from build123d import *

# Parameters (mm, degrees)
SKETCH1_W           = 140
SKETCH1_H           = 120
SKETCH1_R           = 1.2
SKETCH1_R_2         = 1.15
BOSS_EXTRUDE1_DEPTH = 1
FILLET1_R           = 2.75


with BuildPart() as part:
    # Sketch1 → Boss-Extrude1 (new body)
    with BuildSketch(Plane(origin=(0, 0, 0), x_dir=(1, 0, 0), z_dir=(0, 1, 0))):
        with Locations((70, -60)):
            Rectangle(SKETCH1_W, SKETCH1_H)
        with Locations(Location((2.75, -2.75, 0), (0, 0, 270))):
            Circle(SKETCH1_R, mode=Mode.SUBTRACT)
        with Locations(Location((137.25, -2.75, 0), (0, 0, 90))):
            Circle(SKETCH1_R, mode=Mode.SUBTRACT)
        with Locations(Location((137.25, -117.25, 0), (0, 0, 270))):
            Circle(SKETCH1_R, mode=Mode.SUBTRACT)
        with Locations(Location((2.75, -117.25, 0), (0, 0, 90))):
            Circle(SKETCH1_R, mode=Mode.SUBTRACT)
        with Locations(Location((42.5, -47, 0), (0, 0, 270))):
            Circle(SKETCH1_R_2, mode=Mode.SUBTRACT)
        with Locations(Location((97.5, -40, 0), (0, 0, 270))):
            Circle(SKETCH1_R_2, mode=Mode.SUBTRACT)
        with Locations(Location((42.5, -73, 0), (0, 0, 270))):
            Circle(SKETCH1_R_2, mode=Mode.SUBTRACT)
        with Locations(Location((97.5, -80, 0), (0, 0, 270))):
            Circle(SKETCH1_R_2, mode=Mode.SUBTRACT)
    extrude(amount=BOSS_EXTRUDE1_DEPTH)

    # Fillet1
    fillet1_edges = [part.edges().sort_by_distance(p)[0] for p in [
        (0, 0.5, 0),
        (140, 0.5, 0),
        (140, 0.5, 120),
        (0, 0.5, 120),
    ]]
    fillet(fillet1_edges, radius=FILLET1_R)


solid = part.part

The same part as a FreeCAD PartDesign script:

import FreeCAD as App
import Part
import Sketcher
Q = App.Units.Quantity


def edges_at(feature, points):
    """Names of the edges that pass closest to the given points."""
    edges = feature.Shape.Edges
    near = lambda p: min(range(len(edges)), key=lambda i: edges[i].distToShape(Part.Vertex(*p))[0])
    return sorted({f"Edge{near(p) + 1}" for p in points})


def add_polygon(sketch, points):
    """Adds a closed chain of lines whose ends are joined by coincident constraints."""
    first, n = sketch.GeometryCount, len(points)
    for a, b in zip(points, points[1:] + points[:1]):
        sketch.addGeometry(Part.LineSegment(App.Vector(*a, 0), App.Vector(*b, 0)), False)
    for i in range(n):
        sketch.addConstraint(Sketcher.Constraint("Coincident", first + i, 2, first + (i + 1) % n, 1))

doc = App.newDocument("Part")
params = doc.addObject("Spreadsheet::Sheet", "Params")
for row, (alias, value) in enumerate([
    ("sketch1_diameter", "2.4 mm"),
    ("sketch1_diameter2", "2.3 mm"),
    ("sketch1_width", "140 mm"),
    ("sketch1_height", "120 mm"),
    ("pad1_length", "1 mm"),
    ("fillet_radius", "2.75 mm"),
], start=1):
    params.set(f"A{row}", alias)
    params.set(f"B{row}", "=" + value)
    params.setAlias(f"B{row}", alias)

body = doc.addObject("PartDesign::Body", "Body")

# Sketch on XZ plane
sketch1 = body.newObject("Sketcher::SketchObject", "Sketch")
sketch1.AttachmentSupport = (doc.getObject("XZ_Plane"), [""])
sketch1.MapMode = "FlatFace"
add_polygon(sketch1, [(0, 0), (0, 120), (140, 120), (140, 0)])  # lines 0-3
sketch1.addGeometry(Part.Circle(App.Vector(2.75, 117.25, 0), App.Vector(0, 0, 1), 1.2), False)  # 4
sketch1.addGeometry(Part.Circle(App.Vector(42.5, 73, 0), App.Vector(0, 0, 1), 1.15), False)  # 5
sketch1.addGeometry(Part.Circle(App.Vector(137.25, 117.25, 0), App.Vector(0, 0, 1), 1.2), False)  # 6
sketch1.addGeometry(Part.Circle(App.Vector(97.5, 80, 0), App.Vector(0, 0, 1), 1.15), False)  # 7
sketch1.addGeometry(Part.Circle(App.Vector(42.5, 47, 0), App.Vector(0, 0, 1), 1.15), False)  # 8
sketch1.addGeometry(Part.Circle(App.Vector(2.75, 2.75, 0), App.Vector(0, 0, 1), 1.2), False)  # 9
sketch1.addGeometry(Part.Circle(App.Vector(97.5, 40, 0), App.Vector(0, 0, 1), 1.15), False)  # 10
sketch1.addGeometry(Part.Circle(App.Vector(137.25, 2.75, 0), App.Vector(0, 0, 1), 1.2), False)  # 11
sketch1.addConstraint(Sketcher.Constraint("Vertical", 0))
sketch1.addConstraint(Sketcher.Constraint("Horizontal", 1))
sketch1.addConstraint(Sketcher.Constraint("Vertical", 2))
sketch1.addConstraint(Sketcher.Constraint("Horizontal", 3))
sketch1.addConstraint(Sketcher.Constraint("Coincident", 3, 2, -1, 1))
sketch1.addConstraint(Sketcher.Constraint("Equal", 4, 6))
sketch1.addConstraint(Sketcher.Constraint("Equal", 5, 7))
sketch1.addConstraint(Sketcher.Constraint("Equal", 7, 8))
sketch1.addConstraint(Sketcher.Constraint("Equal", 6, 9))
sketch1.addConstraint(Sketcher.Constraint("Equal", 8, 10))
sketch1.addConstraint(Sketcher.Constraint("Equal", 9, 11))
sketch1.addConstraint(Sketcher.Constraint("Horizontal", 4, 3, 6, 3))
sketch1.addConstraint(Sketcher.Constraint("Horizontal", 9, 3, 11, 3))
sketch1.addConstraint(Sketcher.Constraint("Vertical", 5, 3, 8, 3))
sketch1.addConstraint(Sketcher.Constraint("Vertical", 4, 3, 9, 3))
sketch1.addConstraint(Sketcher.Constraint("Vertical", 7, 3, 10, 3))
sketch1.addConstraint(Sketcher.Constraint("Vertical", 6, 3, 11, 3))
sketch1.addConstraint(Sketcher.Constraint("Diameter", 4, Q("2.4 mm")))
sketch1.addConstraint(Sketcher.Constraint("Diameter", 5, Q("2.3 mm")))
sketch1.addConstraint(Sketcher.Constraint("DistanceX", 1, 1, 1, 2, Q("140 mm")))
sketch1.addConstraint(Sketcher.Constraint("DistanceY", 0, 1, 0, 2, Q("120 mm")))
sketch1.addConstraint(Sketcher.Constraint("DistanceY", -1, 1, 5, 3, Q("73 mm")))
sketch1.addConstraint(Sketcher.Constraint("DistanceY", -1, 1, 7, 3, Q("80 mm")))
sketch1.addConstraint(Sketcher.Constraint("DistanceY", -1, 1, 8, 3, Q("47 mm")))
sketch1.addConstraint(Sketcher.Constraint("DistanceY", -1, 1, 10, 3, Q("40 mm")))
sketch1.addConstraint(Sketcher.Constraint("DistanceX", 5, 3, 7, 3, Q("55 mm")))
sketch1.addConstraint(Sketcher.Constraint("DistanceX", -1, 1, 5, 3, Q("42.5 mm")))
sketch1.addConstraint(Sketcher.Constraint("DistanceX", 4, 3, 6, 3, Q("134.5 mm")))
sketch1.addConstraint(Sketcher.Constraint("DistanceY", 9, 3, 4, 3, Q("114.5 mm")))
sketch1.addConstraint(Sketcher.Constraint("DistanceX", -1, 1, 4, 3, Q("2.75 mm")))
sketch1.addConstraint(Sketcher.Constraint("DistanceY", -1, 1, 4, 3, Q("117.25 mm")))
sketch1.setExpression("Constraints[21]", "Params.sketch1_diameter")
sketch1.setExpression("Constraints[22]", "Params.sketch1_diameter2")
sketch1.setExpression("Constraints[23]", "Params.sketch1_width")
sketch1.setExpression("Constraints[24]", "Params.sketch1_height")
pad1 = body.newObject("PartDesign::Pad", "Pad")
pad1.Profile = sketch1
pad1.setExpression("Length", "Params.pad1_length")
pad1.Reversed = True
doc.recompute()

fillet = body.newObject("PartDesign::Fillet", "Fillet")
fillet.Base = (pad1, edges_at(pad1, [
    (0, 0.5, 0),
    (140, 0.5, 0),
    (140, 0.5, 120),
    (0, 0.5, 120),
]))
fillet.setExpression("Radius", "Params.fillet_radius")

doc.recompute()
